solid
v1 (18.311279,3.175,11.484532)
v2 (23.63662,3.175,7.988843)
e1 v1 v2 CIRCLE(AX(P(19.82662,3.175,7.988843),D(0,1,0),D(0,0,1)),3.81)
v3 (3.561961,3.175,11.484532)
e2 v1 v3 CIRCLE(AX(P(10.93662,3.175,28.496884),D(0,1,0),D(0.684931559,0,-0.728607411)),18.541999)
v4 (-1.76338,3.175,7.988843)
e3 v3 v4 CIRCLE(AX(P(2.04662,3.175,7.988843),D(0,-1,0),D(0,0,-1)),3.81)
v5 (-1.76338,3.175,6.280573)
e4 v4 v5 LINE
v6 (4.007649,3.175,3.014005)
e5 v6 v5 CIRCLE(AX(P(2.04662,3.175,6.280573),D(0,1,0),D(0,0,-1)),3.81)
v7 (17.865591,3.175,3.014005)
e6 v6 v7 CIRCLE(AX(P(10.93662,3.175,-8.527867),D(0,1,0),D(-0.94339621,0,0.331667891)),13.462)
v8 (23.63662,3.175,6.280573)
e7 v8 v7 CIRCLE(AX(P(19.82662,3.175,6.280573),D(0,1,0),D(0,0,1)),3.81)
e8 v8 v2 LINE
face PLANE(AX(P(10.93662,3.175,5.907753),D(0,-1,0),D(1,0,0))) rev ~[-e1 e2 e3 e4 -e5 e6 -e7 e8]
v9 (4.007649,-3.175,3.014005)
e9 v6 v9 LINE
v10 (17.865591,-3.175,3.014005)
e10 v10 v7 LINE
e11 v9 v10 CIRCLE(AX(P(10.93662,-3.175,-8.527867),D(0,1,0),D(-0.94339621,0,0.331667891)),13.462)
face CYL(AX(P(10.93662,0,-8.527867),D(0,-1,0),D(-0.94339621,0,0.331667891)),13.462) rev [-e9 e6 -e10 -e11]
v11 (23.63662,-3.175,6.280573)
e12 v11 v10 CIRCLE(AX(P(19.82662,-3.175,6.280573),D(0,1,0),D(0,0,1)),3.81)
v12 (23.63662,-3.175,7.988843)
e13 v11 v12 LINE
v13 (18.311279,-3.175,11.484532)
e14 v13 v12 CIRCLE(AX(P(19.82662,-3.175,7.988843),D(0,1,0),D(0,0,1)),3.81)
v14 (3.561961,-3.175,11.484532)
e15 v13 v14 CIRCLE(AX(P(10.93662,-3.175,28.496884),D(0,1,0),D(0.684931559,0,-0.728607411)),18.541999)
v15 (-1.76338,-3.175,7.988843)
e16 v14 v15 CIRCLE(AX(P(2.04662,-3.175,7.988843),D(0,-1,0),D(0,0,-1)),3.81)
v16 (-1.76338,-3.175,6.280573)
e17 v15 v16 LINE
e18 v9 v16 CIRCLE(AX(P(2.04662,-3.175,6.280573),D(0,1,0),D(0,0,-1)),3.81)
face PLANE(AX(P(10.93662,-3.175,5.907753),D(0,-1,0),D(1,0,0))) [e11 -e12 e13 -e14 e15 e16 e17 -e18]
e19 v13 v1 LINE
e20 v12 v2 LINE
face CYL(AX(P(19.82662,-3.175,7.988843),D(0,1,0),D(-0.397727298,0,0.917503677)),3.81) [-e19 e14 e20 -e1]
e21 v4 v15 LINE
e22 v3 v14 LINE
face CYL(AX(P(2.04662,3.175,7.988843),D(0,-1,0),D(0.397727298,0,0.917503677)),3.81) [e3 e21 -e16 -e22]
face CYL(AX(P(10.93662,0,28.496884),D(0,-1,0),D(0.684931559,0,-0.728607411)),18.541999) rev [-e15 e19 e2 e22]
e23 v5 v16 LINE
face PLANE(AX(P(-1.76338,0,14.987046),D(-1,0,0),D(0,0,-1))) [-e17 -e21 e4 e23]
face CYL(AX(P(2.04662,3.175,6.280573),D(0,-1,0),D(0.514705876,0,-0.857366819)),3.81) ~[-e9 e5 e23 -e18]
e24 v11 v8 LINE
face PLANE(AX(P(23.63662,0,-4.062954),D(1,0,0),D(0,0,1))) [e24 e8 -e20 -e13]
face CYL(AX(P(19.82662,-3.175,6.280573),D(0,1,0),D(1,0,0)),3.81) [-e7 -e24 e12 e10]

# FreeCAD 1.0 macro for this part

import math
import FreeCAD as App
import Part
import Sketcher

V = App.Vector
Q = App.Units.Quantity


def edges_at(feature, points):
    """Names of the edges that pass closest to the given points."""
    edges = feature.Shape.Edges
    near = lambda p: min(range(len(edges)), key=lambda i: edges[i].distToShape(Part.Vertex(*p))[0])
    return sorted({f"Edge{near(p) + 1}" for p in points})

doc = App.newDocument("Part")
body = doc.addObject("PartDesign::Body", "Body")

sketch1 = body.newObject("Sketcher::SketchObject", "Sketch")
sketch1.AttachmentSupport = (doc.getObject("XZ_Plane"), [""])
sketch1.MapMode = "FlatFace"
sketch1.addGeometry([
    Part.ArcOfCircle(Part.Circle(V(11, 28, 0), V(0, 0, 1), 19), math.radians(-133), math.radians(-47)),
    Part.LineSegment(V(-2, 15, 0), V(-2, -4, 0)),
    Part.ArcOfCircle(Part.Circle(V(11, -9, 0), V(0, 0, 1), 13), math.radians(19), math.radians(161)),
    Part.LineSegment(V(24, -4, 0), V(24, 15, 0)),
], False)
sketch1.addConstraint([
    Sketcher.Constraint("Coincident", 0, 1, 1, 1),
    Sketcher.Constraint("Coincident", 1, 2, 2, 2),
    Sketcher.Constraint("Coincident", 2, 1, 3, 1),
    Sketcher.Constraint("Coincident", 3, 2, 0, 2),
    Sketcher.Constraint("Vertical", 1),
    Sketcher.Constraint("Vertical", 3),
    Sketcher.Constraint("Horizontal", 1, 2, 2, 1),
    Sketcher.Constraint("Horizontal", 0, 1, 3, 2),
    Sketcher.Constraint("Radius", 0, Q("0.7299999 in")),
    Sketcher.Constraint("Radius", 2, Q("0.53 in")),
    Sketcher.Constraint("DistanceX", 1, 2, 2, 1, Q("1 in")),
    Sketcher.Constraint("DistanceY", 1, 2, 1, 1, Q("0.75 in")),
    Sketcher.Constraint("DistanceX", -1, 1, 0, 3, Q("10.93662 mm")),
    Sketcher.Constraint("DistanceY", -1, 1, 0, 3, Q("28.496884 mm")),
])
pad1 = body.newObject("PartDesign::Pad", "Pad")
pad1.Profile = sketch1
pad1.Length = Q("0.25 in")
pad1.Midplane = True
doc.recompute()

fillet = body.newObject("PartDesign::Fillet", "Fillet")
fillet.Base = (pad1, edges_at(pad1, [
    (23.637, 0, 14.987),
    (23.637, 0, -4.063),
    (-1.763, 0, -4.063),
    (-1.763, 0, 14.987),
]))
fillet.Radius = Q("0.15 in")

doc.recompute()
